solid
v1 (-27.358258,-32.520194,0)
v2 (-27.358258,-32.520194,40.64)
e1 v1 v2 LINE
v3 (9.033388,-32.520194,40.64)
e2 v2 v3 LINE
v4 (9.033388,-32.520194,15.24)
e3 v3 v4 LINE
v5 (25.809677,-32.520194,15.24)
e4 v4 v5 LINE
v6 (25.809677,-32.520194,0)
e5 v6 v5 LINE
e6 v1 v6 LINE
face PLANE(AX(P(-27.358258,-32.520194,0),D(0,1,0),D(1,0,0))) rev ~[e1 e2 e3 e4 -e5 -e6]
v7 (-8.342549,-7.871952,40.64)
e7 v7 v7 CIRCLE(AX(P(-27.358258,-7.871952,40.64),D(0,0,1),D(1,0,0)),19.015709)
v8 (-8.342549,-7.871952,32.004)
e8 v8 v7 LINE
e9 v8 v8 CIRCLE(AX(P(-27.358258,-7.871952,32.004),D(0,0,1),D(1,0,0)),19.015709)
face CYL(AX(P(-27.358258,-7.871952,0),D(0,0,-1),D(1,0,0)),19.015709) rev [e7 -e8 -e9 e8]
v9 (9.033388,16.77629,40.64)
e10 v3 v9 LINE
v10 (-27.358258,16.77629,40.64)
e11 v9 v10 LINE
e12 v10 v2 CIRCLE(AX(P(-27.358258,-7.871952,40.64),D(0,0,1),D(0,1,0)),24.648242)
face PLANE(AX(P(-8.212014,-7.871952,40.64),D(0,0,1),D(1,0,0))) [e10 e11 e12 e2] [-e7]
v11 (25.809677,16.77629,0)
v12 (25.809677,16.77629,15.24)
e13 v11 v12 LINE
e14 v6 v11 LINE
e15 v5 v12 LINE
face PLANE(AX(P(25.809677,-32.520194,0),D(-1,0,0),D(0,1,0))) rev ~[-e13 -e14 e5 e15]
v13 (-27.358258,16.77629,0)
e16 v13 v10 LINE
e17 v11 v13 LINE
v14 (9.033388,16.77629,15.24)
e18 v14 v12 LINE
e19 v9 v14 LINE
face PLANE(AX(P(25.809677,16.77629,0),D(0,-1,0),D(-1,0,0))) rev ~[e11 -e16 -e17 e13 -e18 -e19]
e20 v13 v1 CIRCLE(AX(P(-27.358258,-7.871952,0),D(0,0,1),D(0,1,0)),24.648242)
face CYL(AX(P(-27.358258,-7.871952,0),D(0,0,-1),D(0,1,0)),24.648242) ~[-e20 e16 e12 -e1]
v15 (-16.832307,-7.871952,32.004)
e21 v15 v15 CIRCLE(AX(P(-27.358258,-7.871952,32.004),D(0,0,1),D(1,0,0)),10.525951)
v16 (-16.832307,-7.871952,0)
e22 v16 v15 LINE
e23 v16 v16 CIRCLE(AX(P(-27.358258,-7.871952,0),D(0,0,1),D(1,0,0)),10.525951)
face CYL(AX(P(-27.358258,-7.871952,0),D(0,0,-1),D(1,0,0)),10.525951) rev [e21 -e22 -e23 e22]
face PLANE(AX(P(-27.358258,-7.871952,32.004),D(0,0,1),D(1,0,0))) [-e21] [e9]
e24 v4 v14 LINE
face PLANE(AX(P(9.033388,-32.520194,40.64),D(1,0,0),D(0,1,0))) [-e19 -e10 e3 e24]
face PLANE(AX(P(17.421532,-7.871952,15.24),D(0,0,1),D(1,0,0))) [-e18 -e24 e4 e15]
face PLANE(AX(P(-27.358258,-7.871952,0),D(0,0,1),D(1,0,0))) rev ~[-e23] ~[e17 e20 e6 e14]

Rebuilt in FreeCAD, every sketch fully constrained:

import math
import FreeCAD as App
import Part
import Sketcher
from FreeCAD import Vector
Q = App.Units.Quantity


def add_polygon(sketch, points):
    """Adds a closed chain of lines whose ends are joined by coincident constraints."""
    first, n = sketch.GeometryCount, len(points)
    for a, b in zip(points, points[1:] + points[:1]):
        sketch.addGeometry(Part.LineSegment(App.Vector(*a, 0), App.Vector(*b, 0)), False)
    for i in range(n):
        sketch.addConstraint(Sketcher.Constraint("Coincident", first + i, 2, first + (i + 1) % n, 1))

doc = App.newDocument("Part")
body = doc.addObject("PartDesign::Body", "Body")

sketch1 = body.newObject("Sketcher::SketchObject", "Sketch")
sketch1.AttachmentSupport = (doc.getObject("XY_Plane"), [""])
sketch1.MapMode = "FlatFace"
sketch1.addGeometry([
    Part.LineSegment(Vector(25.809677, -32.520194, 0), Vector(25.809677, 16.77629, 0)),
    Part.LineSegment(Vector(25.809677, 16.77629, 0), Vector(-27.358258, 16.77629, 0)),
    Part.ArcOfCircle(Part.Circle(Vector(-27.358258, -7.871952, 0), Vector(0, 0, 1), 24.648242), math.radians(90), math.radians(270)),
    Part.LineSegment(Vector(-27.358258, -32.520194, 0), Vector(25.809677, -32.520194, 0)),
    Part.Circle(Vector(-27.358258, -7.871952, 0), Vector(0, 0, 1), 19.015709),
], False)
sketch1.addConstraint([
    Sketcher.Constraint("Coincident", 0, 2, 1, 1),
    Sketcher.Constraint("Tangent", 1, 2, 2, 1),
    Sketcher.Constraint("Tangent", 2, 2, 3, 1),
    Sketcher.Constraint("Coincident", 3, 2, 0, 1),
    Sketcher.Constraint("Vertical", 0),
    Sketcher.Constraint("Horizontal", 1),
    Sketcher.Constraint("Horizontal", 3),
    Sketcher.Constraint("Coincident", 4, 3, 2, 3),
    Sketcher.Constraint("Diameter", 4, Q("1.4972999 in")),
    Sketcher.Constraint("Radius", 2, Q("24.648242 mm")),
    Sketcher.Constraint("DistanceX", 1, 2, 1, 1, Q("53.167935 mm")),
    Sketcher.Constraint("DistanceX", 2, 3, -1, 1, Q("27.358258 mm")),
    Sketcher.Constraint("DistanceY", 2, 3, -1, 1, Q("7.871952 mm")),
])
pad1 = body.newObject("PartDesign::Pad", "Pad")
pad1.Profile = sketch1
pad1.Length = Q("1.6 in")

sketch2 = body.newObject("Sketcher::SketchObject", "Sketch001")
sketch2.AttachmentSupport = (doc.getObject("XY_Plane"), [""])
sketch2.MapMode = "FlatFace"
sketch2.addGeometry([
    Part.Circle(Vector(-27.358258, -7.871952, 0), Vector(0, 0, 1), 19.015709),
    Part.Circle(Vector(-27.358258, -7.871952, 0), Vector(0, 0, 1), 10.525951),
], False)
sketch2.addConstraint([
    Sketcher.Constraint("Coincident", 1, 3, 0, 3),
    Sketcher.Constraint("Diameter", 0, Q("1.4972999 in")),
    Sketcher.Constraint("Diameter", 1, Q("21.051902 mm")),
    Sketcher.Constraint("DistanceX", 0, 3, -1, 1, Q("27.358258 mm")),
    Sketcher.Constraint("DistanceY", 0, 3, -1, 1, Q("7.871952 mm")),
])
pad2 = body.newObject("PartDesign::Pad", "Pad001")
pad2.Profile = sketch2
pad2.Length = Q("1.26 in")

sketch3 = body.newObject("Sketcher::SketchObject", "Sketch002")
sketch3.AttachmentSupport = (doc.getObject("XY_Plane"), [""])
sketch3.MapMode = "FlatFace"
sketch3.AttachmentOffset = App.Placement(Vector(0, 0, 1.6 * 25.4), App.Rotation())
add_polygon(sketch3, [(9.033388, 16.77629), (9.033388, -32.520194), (25.809677, -32.520194), (25.809677, 16.77629)])
sketch3.addConstraint([
    Sketcher.Constraint("Vertical", 0),
    Sketcher.Constraint("Horizontal", 1),
    Sketcher.Constraint("Vertical", 2),
    Sketcher.Constraint("Horizontal", 3),
    Sketcher.Constraint("DistanceX", 1, 1, 1, 2, Q("16.77629 mm")),
    Sketcher.Constraint("DistanceY", 0, 2, 0, 1, Q("49.296483 mm")),
    Sketcher.Constraint("DistanceY", -1, 1, 2, 2, Q("16.77629 mm")),
    Sketcher.Constraint("DistanceX", -1, 1, 0, 2, Q("9.033388 mm")),
])
pocket1 = body.newObject("PartDesign::Pocket", "Pocket")
pocket1.Profile = sketch3
pocket1.Length = Q("1 in")

doc.recompute()
